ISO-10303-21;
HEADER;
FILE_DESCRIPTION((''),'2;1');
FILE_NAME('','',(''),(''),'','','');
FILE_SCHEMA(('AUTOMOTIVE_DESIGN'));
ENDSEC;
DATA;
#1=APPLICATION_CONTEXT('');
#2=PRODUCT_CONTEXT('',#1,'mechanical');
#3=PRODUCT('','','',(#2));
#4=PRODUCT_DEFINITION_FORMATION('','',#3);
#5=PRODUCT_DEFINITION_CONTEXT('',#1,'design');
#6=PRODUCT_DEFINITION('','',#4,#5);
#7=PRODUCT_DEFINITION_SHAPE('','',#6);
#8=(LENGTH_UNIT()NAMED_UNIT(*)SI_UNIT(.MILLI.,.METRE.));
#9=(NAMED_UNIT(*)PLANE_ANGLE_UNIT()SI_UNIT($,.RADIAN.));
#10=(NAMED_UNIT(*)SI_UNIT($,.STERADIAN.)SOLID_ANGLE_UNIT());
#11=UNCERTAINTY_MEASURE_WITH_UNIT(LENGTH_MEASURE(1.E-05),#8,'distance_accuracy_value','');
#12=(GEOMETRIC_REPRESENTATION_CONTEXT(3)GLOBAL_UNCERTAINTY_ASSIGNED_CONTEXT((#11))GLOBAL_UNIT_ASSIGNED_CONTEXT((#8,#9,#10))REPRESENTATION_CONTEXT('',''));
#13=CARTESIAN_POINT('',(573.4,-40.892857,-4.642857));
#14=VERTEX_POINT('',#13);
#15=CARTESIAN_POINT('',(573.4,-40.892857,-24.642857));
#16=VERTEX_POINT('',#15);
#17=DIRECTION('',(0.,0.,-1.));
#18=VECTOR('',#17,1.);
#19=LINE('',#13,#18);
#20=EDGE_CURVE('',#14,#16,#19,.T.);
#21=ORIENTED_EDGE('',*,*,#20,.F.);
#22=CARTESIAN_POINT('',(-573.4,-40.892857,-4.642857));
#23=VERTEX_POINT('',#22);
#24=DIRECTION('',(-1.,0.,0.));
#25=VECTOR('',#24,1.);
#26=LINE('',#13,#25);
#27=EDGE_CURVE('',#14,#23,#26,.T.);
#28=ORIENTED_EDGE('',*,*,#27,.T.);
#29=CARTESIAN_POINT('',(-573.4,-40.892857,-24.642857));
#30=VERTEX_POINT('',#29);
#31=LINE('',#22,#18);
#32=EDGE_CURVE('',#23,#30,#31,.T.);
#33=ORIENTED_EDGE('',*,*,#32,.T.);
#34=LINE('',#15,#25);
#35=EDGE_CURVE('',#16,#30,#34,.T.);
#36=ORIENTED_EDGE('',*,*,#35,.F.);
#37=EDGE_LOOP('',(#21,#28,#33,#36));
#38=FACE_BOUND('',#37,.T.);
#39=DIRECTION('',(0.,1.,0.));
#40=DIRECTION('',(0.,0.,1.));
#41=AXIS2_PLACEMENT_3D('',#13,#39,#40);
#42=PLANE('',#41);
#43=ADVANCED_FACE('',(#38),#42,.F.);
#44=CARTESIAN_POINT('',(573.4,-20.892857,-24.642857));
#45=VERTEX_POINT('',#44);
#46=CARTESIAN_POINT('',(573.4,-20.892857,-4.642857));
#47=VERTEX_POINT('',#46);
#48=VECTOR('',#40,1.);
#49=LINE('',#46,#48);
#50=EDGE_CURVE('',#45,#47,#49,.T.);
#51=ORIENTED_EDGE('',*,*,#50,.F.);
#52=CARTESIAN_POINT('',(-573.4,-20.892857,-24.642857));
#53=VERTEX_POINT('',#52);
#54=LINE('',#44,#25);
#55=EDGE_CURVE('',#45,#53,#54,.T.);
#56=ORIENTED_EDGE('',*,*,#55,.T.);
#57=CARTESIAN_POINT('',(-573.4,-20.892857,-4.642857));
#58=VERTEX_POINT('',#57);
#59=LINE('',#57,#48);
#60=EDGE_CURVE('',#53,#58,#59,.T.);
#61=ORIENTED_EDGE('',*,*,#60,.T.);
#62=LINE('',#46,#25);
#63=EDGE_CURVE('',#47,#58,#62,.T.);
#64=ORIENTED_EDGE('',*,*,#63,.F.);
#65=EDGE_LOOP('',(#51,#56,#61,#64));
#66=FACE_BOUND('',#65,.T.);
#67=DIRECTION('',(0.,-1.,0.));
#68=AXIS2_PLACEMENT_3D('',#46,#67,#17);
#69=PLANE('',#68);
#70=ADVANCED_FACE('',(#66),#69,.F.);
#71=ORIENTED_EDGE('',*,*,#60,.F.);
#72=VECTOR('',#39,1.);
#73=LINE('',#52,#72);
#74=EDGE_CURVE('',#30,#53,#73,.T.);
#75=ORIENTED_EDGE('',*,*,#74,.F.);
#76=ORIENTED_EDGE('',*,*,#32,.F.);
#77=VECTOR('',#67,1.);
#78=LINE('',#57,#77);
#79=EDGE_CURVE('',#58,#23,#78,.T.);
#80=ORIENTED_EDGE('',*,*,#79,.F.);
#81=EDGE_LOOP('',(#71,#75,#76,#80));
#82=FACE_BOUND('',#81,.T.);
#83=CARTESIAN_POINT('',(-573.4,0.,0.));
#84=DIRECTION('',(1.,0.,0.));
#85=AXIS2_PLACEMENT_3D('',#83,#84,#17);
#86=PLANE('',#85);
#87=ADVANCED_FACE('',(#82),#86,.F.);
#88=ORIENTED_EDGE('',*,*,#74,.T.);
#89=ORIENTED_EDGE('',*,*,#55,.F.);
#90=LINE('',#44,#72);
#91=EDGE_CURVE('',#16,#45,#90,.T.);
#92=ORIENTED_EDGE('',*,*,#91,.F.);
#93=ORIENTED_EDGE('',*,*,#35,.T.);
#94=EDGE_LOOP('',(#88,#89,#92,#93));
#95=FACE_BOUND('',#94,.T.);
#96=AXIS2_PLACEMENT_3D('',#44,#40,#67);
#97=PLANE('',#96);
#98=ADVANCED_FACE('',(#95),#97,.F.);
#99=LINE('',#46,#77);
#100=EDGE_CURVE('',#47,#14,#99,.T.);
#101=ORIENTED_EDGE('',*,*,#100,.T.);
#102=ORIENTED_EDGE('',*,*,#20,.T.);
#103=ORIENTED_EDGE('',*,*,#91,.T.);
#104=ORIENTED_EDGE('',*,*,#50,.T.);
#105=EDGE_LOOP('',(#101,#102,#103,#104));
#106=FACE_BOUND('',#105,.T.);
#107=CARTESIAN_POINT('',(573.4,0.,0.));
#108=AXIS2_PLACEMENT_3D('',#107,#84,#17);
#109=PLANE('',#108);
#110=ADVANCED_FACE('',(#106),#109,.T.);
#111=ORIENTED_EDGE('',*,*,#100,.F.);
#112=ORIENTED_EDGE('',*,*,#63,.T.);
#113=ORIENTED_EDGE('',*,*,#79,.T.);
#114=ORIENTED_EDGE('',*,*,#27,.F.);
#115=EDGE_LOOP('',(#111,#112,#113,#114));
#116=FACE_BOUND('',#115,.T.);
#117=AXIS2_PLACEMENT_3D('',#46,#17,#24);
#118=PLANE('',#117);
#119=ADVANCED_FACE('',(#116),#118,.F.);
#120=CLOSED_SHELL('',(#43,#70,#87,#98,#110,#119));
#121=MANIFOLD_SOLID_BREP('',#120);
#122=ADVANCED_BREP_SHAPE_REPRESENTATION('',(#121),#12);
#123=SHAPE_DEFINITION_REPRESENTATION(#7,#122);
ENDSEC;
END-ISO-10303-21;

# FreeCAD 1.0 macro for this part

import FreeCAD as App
import Part
import Sketcher

doc = App.newDocument("Part")
body = doc.addObject("PartDesign::Body", "Body")

sketch1 = body.newObject("Sketcher::SketchObject", "Sketch")
sketch1.AttachmentSupport = (doc.getObject("YZ_Plane"), [""])
sketch1.MapMode = "FlatFace"
sketch1.addGeometry(Part.LineSegment(App.Vector(-21, -5, 0), App.Vector(-41, -5, 0)), False)
sketch1.addGeometry(Part.LineSegment(App.Vector(-41, -5, 0), App.Vector(-41, -25, 0)), False)
sketch1.addGeometry(Part.LineSegment(App.Vector(-41, -25, 0), App.Vector(-21, -25, 0)), False)
sketch1.addGeometry(Part.LineSegment(App.Vector(-21, -25, 0), App.Vector(-21, -5, 0)), False)
sketch1.addConstraint(Sketcher.Constraint("Coincident", 0, 2, 1, 1))
sketch1.addConstraint(Sketcher.Constraint("Coincident", 1, 2, 2, 1))
sketch1.addConstraint(Sketcher.Constraint("Coincident", 2, 2, 3, 1))
sketch1.addConstraint(Sketcher.Constraint("Coincident", 3, 2, 0, 1))
sketch1.addConstraint(Sketcher.Constraint("Horizontal", 0))
sketch1.addConstraint(Sketcher.Constraint("Vertical", 1))
sketch1.addConstraint(Sketcher.Constraint("Horizontal", 2))
sketch1.addConstraint(Sketcher.Constraint("Vertical", 3))
sketch1.addConstraint(Sketcher.Constraint("Equal", 2, 1))
sketch1.addConstraint(Sketcher.Constraint("DistanceX", 0, 2, 0, 1, 20.0))
sketch1.addConstraint(Sketcher.Constraint("DistanceX", 0, 2, -1, 1, 40.892857))
sketch1.addConstraint(Sketcher.Constraint("DistanceY", 0, 2, -1, 1, 4.642857))
pad1 = body.newObject("PartDesign::Pad", "Pad")
pad1.Profile = sketch1
pad1.Length = 1146.8
pad1.Midplane = True

doc.recompute()
